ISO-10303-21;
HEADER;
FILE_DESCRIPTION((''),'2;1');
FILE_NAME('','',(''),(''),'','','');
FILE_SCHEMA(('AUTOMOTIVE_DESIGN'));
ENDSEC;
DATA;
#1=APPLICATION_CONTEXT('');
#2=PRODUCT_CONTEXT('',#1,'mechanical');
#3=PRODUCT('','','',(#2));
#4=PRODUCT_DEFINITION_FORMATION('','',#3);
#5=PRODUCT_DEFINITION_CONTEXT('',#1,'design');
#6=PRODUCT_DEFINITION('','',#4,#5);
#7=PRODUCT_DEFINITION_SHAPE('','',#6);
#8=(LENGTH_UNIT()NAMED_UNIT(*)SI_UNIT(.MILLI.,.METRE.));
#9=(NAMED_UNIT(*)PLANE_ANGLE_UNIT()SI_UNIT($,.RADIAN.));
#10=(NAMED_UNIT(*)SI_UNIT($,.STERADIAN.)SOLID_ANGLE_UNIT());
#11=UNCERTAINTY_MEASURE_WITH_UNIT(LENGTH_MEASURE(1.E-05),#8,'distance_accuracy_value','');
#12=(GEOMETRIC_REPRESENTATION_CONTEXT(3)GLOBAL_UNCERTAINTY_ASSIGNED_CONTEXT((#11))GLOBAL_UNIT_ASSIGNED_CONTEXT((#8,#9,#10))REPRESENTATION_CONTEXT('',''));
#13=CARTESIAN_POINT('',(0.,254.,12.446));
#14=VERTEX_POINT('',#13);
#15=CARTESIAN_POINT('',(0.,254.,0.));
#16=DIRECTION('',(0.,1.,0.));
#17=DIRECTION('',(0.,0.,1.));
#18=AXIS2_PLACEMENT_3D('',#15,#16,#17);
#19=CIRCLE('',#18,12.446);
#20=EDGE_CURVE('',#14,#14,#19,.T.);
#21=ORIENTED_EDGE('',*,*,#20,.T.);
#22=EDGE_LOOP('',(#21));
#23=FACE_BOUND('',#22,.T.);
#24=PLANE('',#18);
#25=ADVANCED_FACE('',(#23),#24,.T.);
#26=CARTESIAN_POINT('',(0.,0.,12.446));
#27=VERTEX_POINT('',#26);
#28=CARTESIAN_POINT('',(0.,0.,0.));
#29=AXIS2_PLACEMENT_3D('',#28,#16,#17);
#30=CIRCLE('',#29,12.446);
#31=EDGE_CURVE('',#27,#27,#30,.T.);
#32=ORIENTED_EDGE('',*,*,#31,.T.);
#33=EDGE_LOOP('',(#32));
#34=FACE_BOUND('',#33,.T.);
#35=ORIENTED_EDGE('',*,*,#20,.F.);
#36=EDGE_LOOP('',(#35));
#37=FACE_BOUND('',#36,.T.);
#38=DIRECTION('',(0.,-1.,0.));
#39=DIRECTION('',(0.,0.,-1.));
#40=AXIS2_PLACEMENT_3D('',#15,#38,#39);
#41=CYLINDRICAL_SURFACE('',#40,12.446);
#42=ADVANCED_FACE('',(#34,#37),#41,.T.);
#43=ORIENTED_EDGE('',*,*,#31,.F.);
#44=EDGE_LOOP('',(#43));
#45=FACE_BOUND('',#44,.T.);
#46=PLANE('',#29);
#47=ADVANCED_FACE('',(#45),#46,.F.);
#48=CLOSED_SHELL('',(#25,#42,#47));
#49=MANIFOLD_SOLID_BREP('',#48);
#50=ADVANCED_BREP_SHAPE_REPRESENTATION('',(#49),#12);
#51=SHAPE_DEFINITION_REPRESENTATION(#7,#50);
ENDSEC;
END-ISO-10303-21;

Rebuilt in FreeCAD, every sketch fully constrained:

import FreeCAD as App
import Part
import Sketcher
Q = App.Units.Quantity

doc = App.newDocument("Part")
body = doc.addObject("PartDesign::Body", "Body")

# Sketch on XZ plane
sketch1 = doc.addObject("Sketcher::SketchObject", "Sketch")
body.addObject(sketch1)
sketch1.AttachmentSupport = (doc.XZ_Plane, [""])
sketch1.MapMode = "FlatFace"
sketch1.addGeometry(Part.Circle(App.Vector(0, 0, 0), App.Vector(0, 0, 1), 12), False)
sketch1.addConstraint([
    Sketcher.Constraint("Coincident", 0, 3, -1, 1),
    Sketcher.Constraint("Diameter", 0, Q("0.98 in")),
])
pad1 = doc.addObject("PartDesign::Pad", "Pad")
body.addObject(pad1)
pad1.Profile = sketch1
pad1.Length = Q("10 in")
pad1.Reversed = True

doc.recompute()
